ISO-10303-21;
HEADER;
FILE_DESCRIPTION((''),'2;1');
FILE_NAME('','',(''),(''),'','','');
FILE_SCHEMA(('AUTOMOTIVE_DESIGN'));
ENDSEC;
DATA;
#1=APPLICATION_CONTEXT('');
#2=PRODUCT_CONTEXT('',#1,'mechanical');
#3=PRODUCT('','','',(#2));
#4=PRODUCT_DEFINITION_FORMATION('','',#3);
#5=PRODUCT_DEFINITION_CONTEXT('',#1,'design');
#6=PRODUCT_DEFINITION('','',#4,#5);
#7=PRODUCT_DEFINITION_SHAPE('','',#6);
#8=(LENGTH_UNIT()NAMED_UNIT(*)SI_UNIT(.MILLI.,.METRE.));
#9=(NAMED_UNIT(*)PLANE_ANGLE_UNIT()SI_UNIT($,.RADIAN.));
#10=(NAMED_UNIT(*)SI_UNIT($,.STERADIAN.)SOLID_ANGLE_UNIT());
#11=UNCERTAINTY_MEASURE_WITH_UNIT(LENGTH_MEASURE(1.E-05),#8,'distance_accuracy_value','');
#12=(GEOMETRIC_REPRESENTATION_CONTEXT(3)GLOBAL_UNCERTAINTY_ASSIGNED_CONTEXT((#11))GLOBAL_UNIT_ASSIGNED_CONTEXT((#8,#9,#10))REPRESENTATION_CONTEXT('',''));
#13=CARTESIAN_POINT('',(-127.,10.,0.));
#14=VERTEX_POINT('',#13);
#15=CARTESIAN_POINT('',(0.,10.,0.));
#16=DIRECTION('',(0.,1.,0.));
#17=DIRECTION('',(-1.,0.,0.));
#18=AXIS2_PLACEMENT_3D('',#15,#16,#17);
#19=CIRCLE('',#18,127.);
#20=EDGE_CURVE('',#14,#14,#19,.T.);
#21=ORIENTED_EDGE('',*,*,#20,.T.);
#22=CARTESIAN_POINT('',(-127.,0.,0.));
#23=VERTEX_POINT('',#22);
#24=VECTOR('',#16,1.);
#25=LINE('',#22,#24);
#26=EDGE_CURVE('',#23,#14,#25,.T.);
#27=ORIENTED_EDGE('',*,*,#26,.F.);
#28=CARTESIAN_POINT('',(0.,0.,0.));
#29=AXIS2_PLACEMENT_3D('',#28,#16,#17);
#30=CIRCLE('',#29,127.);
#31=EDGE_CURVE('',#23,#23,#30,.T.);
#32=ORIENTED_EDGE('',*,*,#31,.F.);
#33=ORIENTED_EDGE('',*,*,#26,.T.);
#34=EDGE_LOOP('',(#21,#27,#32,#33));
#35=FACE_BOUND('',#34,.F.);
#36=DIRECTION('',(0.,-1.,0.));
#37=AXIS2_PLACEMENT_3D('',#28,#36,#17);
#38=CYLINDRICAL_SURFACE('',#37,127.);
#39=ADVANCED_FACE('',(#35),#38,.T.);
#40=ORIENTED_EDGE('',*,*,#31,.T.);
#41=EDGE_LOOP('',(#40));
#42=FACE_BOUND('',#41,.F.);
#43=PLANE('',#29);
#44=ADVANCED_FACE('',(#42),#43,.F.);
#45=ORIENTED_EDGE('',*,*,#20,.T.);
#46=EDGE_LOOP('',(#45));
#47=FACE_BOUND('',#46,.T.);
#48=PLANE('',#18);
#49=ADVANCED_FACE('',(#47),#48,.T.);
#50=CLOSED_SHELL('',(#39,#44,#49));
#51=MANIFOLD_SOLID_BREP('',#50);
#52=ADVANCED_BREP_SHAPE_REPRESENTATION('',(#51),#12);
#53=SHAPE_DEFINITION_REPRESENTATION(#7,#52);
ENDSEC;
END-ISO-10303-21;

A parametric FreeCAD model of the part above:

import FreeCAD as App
import Part
import Sketcher
from FreeCAD import Vector
Q = App.Units.Quantity

doc = App.newDocument("Part")
body = doc.addObject("PartDesign::Body", "Body")

# Sketch on XZ plane
sketch1 = body.newObject("Sketcher::SketchObject", "Sketch")
sketch1.AttachmentSupport = (doc.getObject("XZ_Plane"), [""])
sketch1.MapMode = "FlatFace"
sketch1.addGeometry(Part.Circle(Vector(0, 0, 0), Vector(0, 0, 1), 127), False)
sketch1.addConstraint([
    Sketcher.Constraint("Coincident", 0, 3, -1, 1),
    Sketcher.Constraint("Diameter", 0, Q("10 in")),
])
pad1 = body.newObject("PartDesign::Pad", "Pad")
pad1.Profile = sketch1
pad1.Length = Q("0.3937008 in")
pad1.Reversed = True

doc.recompute()
